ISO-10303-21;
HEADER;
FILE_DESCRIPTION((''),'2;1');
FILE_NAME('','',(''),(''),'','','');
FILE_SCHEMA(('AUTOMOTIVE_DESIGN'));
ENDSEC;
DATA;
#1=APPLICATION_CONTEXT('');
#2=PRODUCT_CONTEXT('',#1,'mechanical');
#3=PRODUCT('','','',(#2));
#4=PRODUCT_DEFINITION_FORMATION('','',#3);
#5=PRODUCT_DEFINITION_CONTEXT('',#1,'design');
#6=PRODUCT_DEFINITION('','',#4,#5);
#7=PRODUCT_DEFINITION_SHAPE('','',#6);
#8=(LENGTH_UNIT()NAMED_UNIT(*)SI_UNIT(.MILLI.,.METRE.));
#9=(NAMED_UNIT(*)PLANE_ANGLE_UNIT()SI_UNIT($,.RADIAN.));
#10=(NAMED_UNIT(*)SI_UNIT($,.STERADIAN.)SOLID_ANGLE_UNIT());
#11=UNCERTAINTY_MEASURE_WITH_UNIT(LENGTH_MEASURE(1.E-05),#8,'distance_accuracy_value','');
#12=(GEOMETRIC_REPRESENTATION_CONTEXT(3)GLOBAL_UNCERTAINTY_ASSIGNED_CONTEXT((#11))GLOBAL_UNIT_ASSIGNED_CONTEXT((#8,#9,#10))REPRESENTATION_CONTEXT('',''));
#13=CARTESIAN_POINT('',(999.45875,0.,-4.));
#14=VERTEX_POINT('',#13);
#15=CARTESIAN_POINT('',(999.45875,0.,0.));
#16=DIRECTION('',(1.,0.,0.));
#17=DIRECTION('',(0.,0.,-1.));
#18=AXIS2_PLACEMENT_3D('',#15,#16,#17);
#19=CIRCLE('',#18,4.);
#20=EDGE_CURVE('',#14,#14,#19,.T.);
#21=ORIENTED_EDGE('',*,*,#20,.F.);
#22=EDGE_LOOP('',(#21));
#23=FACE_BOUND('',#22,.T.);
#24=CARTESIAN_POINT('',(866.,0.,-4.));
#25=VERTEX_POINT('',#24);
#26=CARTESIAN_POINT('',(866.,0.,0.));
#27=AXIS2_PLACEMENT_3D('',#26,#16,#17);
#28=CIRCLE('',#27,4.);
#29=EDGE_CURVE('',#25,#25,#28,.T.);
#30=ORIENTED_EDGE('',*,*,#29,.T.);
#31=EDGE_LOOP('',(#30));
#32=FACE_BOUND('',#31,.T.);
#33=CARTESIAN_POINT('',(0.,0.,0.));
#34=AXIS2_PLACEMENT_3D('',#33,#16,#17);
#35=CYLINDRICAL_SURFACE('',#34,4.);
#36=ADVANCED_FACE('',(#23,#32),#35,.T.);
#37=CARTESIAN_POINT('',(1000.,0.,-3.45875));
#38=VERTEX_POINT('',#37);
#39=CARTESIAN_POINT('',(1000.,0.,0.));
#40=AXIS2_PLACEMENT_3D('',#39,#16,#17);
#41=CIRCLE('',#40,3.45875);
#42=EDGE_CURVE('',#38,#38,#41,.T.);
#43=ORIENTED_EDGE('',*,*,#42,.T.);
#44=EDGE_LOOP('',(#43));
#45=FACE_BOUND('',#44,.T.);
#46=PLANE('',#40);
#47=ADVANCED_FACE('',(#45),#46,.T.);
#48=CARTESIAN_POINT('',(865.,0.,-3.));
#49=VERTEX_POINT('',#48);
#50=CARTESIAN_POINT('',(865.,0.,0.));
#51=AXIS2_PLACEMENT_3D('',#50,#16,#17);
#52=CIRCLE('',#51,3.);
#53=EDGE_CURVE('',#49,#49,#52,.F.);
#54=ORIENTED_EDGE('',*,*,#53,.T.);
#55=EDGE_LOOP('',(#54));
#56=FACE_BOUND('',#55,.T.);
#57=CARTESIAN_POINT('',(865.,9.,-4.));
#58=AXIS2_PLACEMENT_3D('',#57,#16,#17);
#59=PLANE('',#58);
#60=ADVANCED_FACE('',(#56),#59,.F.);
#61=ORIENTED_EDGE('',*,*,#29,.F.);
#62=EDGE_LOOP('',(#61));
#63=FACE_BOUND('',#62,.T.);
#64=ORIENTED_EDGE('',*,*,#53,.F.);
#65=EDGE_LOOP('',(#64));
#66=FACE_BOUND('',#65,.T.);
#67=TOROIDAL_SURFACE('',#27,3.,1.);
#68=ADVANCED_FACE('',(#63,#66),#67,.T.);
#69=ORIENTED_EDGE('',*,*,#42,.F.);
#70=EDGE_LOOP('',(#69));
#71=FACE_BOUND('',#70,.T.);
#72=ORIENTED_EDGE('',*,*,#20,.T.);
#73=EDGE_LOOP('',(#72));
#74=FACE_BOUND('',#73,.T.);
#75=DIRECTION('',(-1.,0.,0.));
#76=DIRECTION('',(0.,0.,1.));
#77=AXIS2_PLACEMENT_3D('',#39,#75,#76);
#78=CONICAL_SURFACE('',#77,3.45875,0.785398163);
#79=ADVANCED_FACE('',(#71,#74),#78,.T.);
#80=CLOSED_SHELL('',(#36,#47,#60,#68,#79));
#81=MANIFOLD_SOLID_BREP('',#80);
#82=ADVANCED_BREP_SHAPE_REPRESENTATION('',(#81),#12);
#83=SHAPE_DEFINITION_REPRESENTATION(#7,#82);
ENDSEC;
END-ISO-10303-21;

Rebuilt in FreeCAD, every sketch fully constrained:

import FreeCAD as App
import Part
import Sketcher

V = App.Vector


def edges_at(feature, points):
    """Names of the edges that pass closest to the given points."""
    edges = feature.Shape.Edges
    near = lambda p: min(range(len(edges)), key=lambda i: edges[i].distToShape(Part.Vertex(*p))[0])
    return sorted({f"Edge{near(p) + 1}" for p in points})


def add_polygon(sketch, points):
    """Adds a closed chain of lines whose ends are joined by coincident constraints."""
    first, n = sketch.GeometryCount, len(points)
    for a, b in zip(points, points[1:] + points[:1]):
        sketch.addGeometry(Part.LineSegment(App.Vector(*a, 0), App.Vector(*b, 0)), False)
    for i in range(n):
        sketch.addConstraint(Sketcher.Constraint("Coincident", first + i, 2, first + (i + 1) % n, 1))

doc = App.newDocument("Part")
body = doc.addObject("PartDesign::Body", "Body")

sketch1 = doc.addObject("Sketcher::SketchObject", "Sketch")
body.addObject(sketch1)
sketch1.AttachmentSupport = (doc.XY_Plane, [""])
sketch1.MapMode = "FlatFace"
add_polygon(sketch1, [(0, 3.5), (0, 0), (1000, 0), (1000, 3.5), (999.5, 4), (0.5, 4)])
sketch1.addConstraint(Sketcher.Constraint("Vertical", 0))
sketch1.addConstraint(Sketcher.Constraint("Horizontal", 1))
sketch1.addConstraint(Sketcher.Constraint("Vertical", 2))
sketch1.addConstraint(Sketcher.Constraint("Horizontal", 4))
sketch1.addConstraint(Sketcher.Constraint("Coincident", 0, 2, -1, 1))
sketch1.addConstraint(Sketcher.Constraint("Perpendicular", 3, 5))
sketch1.addConstraint(Sketcher.Constraint("Horizontal", 2, 2, 5, 2))
sketch1.addConstraint(Sketcher.Constraint("Equal", 3, 5))
sketch1.addConstraint(Sketcher.Constraint("DistanceX", 1, 1, 1, 2, 1000.0))
sketch1.addConstraint(Sketcher.Constraint("DistanceY", -1, 1, 3, 2, 4.0))
sketch1.addConstraint(Sketcher.Constraint("DistanceX", 4, 2, 4, 1, 998.9175))
revolution = doc.addObject("PartDesign::Revolution", "Revolution")
body.addObject(revolution)
revolution.Profile = sketch1
revolution.ReferenceAxis = (sketch1, ["H_Axis"])
revolution.Angle = 360

sketch2 = doc.addObject("Sketcher::SketchObject", "Sketch001")
body.addObject(sketch2)
sketch2.AttachmentSupport = (doc.XY_Plane, [""])
sketch2.MapMode = "FlatFace"
add_polygon(sketch2, [(-5, 9), (-5, -9), (865, -9), (865, 9)])
sketch2.addConstraint(Sketcher.Constraint("Vertical", 0))
sketch2.addConstraint(Sketcher.Constraint("Horizontal", 1))
sketch2.addConstraint(Sketcher.Constraint("Vertical", 2))
sketch2.addConstraint(Sketcher.Constraint("Horizontal", 3))
sketch2.addConstraint(Sketcher.Constraint("DistanceX", 1, 1, 1, 2, 870.0))
sketch2.addConstraint(Sketcher.Constraint("DistanceY", 0, 2, 0, 1, 18.0))
sketch2.addConstraint(Sketcher.Constraint("DistanceX", 0, 2, -1, 1, 5.0))
sketch2.addConstraint(Sketcher.Constraint("DistanceY", 0, 2, -1, 1, 9.0))
pocket1 = doc.addObject("PartDesign::Pocket", "Pocket")
body.addObject(pocket1)
pocket1.Profile = sketch2
pocket1.Type = "ThroughAll"
pocket1.Midplane = True
doc.recompute()

fillet = doc.addObject("PartDesign::Fillet", "Fillet")
body.addObject(fillet)
fillet.Base = (pocket1, edges_at(pocket1, [(865, 0, 4)]))
fillet.Radius = 1

doc.recompute()
